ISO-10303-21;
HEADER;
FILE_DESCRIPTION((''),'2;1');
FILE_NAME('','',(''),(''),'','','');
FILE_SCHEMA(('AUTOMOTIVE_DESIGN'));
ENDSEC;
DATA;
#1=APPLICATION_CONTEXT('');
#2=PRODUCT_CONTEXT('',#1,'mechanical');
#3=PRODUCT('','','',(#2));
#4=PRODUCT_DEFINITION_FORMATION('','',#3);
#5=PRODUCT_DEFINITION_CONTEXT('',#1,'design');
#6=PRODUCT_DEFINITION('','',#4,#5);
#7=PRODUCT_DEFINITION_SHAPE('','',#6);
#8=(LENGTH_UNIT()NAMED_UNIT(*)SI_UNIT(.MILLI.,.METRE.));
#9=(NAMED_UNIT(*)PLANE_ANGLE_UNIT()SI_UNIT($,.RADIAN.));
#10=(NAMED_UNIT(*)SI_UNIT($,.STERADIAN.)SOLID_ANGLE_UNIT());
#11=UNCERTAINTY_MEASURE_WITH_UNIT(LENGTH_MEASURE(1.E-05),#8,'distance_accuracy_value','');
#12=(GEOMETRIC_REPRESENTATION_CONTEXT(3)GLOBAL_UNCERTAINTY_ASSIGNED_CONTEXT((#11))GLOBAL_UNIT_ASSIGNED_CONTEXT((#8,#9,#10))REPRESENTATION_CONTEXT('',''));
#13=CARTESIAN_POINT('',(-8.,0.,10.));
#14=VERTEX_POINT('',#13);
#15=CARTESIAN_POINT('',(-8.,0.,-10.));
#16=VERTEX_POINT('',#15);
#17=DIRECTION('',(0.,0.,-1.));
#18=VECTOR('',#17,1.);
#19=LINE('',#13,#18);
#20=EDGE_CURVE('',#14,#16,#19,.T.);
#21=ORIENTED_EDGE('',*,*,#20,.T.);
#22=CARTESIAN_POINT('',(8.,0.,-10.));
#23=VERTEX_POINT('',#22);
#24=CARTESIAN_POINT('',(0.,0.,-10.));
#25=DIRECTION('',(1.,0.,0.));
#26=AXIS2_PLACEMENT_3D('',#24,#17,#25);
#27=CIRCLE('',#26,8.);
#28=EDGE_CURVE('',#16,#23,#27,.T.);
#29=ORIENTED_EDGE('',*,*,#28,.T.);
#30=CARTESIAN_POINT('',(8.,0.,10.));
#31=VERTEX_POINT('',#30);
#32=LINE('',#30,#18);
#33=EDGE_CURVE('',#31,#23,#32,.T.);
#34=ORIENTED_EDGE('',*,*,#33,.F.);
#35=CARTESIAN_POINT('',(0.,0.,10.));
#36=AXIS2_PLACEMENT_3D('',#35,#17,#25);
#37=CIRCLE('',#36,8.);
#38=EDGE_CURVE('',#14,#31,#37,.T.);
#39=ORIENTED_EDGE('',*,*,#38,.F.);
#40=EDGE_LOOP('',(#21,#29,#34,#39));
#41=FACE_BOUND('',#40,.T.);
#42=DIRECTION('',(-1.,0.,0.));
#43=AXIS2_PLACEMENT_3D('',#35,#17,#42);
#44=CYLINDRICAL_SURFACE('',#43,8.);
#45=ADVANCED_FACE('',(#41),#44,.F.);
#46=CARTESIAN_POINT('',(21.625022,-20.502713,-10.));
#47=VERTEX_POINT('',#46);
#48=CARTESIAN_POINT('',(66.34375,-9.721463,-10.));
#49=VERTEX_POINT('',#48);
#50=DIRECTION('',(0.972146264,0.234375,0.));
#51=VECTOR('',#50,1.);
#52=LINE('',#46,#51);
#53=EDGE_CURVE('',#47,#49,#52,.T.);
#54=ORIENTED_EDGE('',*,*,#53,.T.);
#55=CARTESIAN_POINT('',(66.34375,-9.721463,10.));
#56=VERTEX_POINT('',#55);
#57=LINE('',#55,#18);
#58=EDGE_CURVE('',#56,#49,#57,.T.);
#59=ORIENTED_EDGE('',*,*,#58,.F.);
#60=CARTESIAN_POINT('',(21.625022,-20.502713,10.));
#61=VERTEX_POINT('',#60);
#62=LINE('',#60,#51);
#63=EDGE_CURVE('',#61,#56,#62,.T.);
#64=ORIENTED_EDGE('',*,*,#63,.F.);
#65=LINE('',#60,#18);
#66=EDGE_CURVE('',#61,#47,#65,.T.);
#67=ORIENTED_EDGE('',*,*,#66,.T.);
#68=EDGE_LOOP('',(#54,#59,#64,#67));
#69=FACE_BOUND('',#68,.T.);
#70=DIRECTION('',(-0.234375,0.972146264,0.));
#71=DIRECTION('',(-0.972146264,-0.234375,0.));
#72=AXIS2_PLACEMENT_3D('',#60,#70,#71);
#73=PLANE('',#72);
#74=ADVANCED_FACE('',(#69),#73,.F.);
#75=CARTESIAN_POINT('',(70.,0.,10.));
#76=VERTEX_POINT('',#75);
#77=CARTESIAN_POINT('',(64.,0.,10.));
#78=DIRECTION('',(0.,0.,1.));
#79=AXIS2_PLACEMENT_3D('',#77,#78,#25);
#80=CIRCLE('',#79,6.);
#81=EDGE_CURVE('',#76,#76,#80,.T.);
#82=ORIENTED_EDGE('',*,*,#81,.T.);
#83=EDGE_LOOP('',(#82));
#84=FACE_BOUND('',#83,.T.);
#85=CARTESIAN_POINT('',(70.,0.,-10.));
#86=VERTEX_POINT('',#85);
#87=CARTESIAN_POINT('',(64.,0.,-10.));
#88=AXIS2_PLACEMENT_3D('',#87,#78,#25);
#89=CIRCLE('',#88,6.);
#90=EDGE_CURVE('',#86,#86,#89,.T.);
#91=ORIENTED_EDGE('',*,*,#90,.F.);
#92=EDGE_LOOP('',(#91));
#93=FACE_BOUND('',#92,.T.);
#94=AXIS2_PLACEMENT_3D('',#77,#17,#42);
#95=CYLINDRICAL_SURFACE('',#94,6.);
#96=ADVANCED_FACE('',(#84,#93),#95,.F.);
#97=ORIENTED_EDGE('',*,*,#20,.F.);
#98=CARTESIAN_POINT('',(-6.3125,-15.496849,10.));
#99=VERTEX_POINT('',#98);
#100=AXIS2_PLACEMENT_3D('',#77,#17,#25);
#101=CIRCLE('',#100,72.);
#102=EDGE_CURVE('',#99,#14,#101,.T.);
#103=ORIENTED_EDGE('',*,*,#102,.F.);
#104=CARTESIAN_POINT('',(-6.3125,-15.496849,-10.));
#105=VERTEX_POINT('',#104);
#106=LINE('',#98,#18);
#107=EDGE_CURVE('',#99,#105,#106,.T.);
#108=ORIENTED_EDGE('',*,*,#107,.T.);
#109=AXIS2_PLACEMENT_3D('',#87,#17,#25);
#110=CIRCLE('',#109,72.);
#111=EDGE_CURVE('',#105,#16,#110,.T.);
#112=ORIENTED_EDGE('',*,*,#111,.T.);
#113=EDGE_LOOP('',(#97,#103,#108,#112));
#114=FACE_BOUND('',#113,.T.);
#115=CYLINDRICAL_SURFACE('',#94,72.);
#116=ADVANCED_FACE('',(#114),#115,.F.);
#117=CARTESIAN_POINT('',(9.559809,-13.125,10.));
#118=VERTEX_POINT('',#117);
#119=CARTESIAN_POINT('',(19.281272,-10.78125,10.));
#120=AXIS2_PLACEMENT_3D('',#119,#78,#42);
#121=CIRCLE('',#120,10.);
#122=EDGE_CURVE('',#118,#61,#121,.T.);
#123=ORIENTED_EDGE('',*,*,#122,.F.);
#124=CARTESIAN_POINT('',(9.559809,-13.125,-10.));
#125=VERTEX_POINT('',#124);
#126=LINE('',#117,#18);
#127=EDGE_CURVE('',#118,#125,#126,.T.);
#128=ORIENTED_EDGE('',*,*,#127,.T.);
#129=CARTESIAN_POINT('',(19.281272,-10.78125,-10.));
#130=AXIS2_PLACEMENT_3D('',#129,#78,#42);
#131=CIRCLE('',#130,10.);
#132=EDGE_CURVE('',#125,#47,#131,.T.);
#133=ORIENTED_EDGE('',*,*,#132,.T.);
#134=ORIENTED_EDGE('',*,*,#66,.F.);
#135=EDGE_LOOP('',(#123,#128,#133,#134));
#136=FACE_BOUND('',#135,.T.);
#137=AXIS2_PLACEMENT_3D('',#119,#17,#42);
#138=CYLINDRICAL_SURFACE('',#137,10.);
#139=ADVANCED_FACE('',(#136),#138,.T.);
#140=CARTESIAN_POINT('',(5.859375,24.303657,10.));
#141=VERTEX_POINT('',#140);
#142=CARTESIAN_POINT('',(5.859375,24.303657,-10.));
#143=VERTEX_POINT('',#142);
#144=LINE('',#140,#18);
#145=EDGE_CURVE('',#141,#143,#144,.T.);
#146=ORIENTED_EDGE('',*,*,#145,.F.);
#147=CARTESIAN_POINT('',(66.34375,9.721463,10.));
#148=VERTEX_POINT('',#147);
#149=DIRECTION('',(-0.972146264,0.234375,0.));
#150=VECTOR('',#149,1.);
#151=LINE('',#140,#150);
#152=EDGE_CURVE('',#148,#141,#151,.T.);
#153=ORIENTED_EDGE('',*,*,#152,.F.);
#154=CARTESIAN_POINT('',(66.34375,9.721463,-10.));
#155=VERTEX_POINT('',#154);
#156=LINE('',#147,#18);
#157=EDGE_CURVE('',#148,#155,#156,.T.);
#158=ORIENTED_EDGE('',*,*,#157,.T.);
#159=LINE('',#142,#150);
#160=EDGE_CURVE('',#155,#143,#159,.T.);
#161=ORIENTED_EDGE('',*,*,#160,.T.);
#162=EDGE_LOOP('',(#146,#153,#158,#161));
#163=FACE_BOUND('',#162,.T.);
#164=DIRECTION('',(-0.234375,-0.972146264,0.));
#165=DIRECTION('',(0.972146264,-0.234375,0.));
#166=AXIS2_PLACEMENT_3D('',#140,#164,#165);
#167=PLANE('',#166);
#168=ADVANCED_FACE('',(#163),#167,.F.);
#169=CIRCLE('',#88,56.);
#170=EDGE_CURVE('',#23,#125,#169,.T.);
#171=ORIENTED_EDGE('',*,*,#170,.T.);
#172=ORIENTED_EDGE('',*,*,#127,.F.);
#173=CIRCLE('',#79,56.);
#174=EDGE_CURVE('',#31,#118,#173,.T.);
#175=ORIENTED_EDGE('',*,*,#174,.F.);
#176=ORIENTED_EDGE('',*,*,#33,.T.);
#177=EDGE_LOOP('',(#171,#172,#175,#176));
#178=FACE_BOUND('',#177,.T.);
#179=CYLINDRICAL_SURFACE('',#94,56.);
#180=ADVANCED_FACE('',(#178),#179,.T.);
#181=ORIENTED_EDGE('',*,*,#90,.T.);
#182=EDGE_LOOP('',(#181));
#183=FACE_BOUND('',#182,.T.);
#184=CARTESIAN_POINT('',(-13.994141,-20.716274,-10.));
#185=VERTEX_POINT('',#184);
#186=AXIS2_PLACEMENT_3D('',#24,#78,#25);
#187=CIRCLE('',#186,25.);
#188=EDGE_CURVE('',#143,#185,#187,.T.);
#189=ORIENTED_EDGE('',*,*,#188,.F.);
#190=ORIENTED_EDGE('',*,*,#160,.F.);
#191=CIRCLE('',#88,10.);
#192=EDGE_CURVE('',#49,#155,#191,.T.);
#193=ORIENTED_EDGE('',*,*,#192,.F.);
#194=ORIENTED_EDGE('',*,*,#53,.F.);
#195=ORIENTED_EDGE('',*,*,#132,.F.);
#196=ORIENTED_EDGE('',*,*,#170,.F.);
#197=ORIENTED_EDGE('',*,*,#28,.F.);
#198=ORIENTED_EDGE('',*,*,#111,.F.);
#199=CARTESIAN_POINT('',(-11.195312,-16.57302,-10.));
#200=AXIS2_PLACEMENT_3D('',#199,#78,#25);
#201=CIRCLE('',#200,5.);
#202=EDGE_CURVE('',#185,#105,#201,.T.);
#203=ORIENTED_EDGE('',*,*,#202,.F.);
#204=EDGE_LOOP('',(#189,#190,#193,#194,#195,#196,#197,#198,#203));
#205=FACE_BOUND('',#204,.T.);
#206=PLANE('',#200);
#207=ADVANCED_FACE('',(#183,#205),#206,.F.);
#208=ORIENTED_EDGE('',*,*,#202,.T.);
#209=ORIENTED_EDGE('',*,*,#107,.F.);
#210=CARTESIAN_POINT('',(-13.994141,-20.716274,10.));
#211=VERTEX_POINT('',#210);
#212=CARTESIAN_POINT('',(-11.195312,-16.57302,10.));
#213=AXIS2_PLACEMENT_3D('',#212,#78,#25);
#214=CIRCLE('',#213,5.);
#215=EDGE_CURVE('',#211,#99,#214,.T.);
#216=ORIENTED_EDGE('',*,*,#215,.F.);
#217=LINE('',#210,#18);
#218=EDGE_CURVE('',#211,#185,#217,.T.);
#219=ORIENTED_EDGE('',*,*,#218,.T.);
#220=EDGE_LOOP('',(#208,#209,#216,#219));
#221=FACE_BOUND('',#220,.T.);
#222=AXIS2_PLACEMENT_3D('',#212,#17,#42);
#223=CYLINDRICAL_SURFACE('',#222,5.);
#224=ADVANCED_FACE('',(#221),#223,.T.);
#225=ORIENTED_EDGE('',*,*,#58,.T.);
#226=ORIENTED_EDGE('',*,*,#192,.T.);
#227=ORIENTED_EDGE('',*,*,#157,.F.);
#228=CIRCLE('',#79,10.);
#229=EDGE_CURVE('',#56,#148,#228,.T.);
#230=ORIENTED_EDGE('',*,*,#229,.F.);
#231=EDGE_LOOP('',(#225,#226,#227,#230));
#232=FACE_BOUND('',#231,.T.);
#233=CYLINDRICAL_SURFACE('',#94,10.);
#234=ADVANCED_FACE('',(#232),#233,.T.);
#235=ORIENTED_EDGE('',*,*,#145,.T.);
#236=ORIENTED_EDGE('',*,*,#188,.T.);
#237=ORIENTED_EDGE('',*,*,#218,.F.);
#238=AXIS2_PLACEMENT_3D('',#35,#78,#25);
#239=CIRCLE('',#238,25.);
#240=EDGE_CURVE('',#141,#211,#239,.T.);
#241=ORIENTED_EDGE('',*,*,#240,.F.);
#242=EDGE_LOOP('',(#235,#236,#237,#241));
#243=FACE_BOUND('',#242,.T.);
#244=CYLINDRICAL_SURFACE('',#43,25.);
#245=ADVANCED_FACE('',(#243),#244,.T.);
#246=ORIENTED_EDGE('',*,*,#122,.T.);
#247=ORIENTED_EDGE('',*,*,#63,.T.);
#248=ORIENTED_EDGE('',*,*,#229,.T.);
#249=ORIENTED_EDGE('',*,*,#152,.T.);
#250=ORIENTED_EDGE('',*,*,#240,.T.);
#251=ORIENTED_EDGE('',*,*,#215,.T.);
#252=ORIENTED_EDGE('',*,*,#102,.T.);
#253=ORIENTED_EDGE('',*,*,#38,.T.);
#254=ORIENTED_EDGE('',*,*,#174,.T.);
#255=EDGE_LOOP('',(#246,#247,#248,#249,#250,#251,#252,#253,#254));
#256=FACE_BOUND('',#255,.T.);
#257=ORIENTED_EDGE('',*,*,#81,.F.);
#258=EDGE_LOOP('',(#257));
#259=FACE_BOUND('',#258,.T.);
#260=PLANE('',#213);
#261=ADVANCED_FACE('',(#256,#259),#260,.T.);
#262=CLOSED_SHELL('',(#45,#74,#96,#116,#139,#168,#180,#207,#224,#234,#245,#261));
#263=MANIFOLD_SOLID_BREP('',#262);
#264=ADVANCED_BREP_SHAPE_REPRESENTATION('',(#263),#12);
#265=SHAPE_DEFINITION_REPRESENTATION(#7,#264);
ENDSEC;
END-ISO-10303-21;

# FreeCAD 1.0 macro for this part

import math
import FreeCAD as App
import Part
import Sketcher
from FreeCAD import Vector
Q = App.Units.Quantity

doc = App.newDocument("Part")
body = doc.addObject("PartDesign::Body", "Body")

# Sketch on XY plane
sketch1 = doc.addObject("Sketcher::SketchObject", "Sketch")
body.addObject(sketch1)
sketch1.AttachmentSupport = (doc.XY_Plane, [""])
sketch1.MapMode = "FlatFace"
sketch1.addGeometry([
    Part.LineSegment(Vector(66, 10, 0), Vector(6, 24, 0)),  # 0
    Part.ArcOfCircle(Part.Circle(Vector(0, 0, 0), Vector(0, 0, 1), 25), math.radians(76), math.radians(236)),  # 1
    Part.ArcOfCircle(Part.Circle(Vector(-11, -17, 0), Vector(0, 0, 1), 5), math.radians(-124), math.radians(12)),  # 2
    Part.ArcOfCircle(Part.Circle(Vector(64, 0, 0), Vector(0, 0, 1), 72), math.radians(180), math.radians(192.43)),  # 3
    Part.ArcOfCircle(Part.Circle(Vector(0, 0, 0), Vector(0, 0, 1), 8), math.radians(0), math.radians(180)),  # 4
    Part.ArcOfCircle(Part.Circle(Vector(64, 0, 0), Vector(0, 0, 1), 56), math.radians(180), math.radians(193.55)),  # 5
    Part.ArcOfCircle(Part.Circle(Vector(19, -11, 0), Vector(0, 0, 1), 10), math.radians(-166), math.radians(-76)),  # 6
    Part.LineSegment(Vector(22, -21, 0), Vector(66, -10, 0)),  # 7
    Part.ArcOfCircle(Part.Circle(Vector(64, 0, 0), Vector(0, 0, 1), 10), math.radians(-76), math.radians(76)),  # 8
    Part.Circle(Vector(64, 0, 0), Vector(0, 0, 1), 6),  # 9
], False)
sketch1.addConstraint([
    Sketcher.Constraint("Tangent", 0, 2, 1, 1),
    Sketcher.Constraint("Tangent", 1, 2, 2, 1),
    Sketcher.Constraint("Tangent", 2, 2, 3, 2),
    Sketcher.Constraint("Tangent", 3, 1, 4, 2),
    Sketcher.Constraint("Tangent", 4, 1, 5, 1),
    Sketcher.Constraint("Tangent", 5, 2, 6, 1),
    Sketcher.Constraint("Tangent", 6, 2, 7, 1),
    Sketcher.Constraint("Tangent", 7, 2, 8, 1),
    Sketcher.Constraint("Tangent", 8, 2, 0, 1),
    Sketcher.Constraint("Coincident", 1, 3, -1, 1),
    Sketcher.Constraint("Coincident", 4, 3, -1, 1),
    Sketcher.Constraint("Coincident", 5, 3, 3, 3),
    Sketcher.Constraint("Coincident", 8, 3, 3, 3),
    Sketcher.Constraint("Coincident", 9, 3, 3, 3),
    Sketcher.Constraint("Equal", 6, 8),
    Sketcher.Constraint("Symmetric", 7, 2, 8, 2, -1),
    Sketcher.Constraint("Diameter", 9, Q("12 mm")),
    Sketcher.Constraint("Radius", 1, Q("25 mm")),
    Sketcher.Constraint("Radius", 2, Q("5 mm")),
    Sketcher.Constraint("Radius", 3, Q("72 mm")),
    Sketcher.Constraint("Radius", 4, Q("8 mm")),
    Sketcher.Constraint("Radius", 6, Q("10 mm")),
])
pad1 = doc.addObject("PartDesign::Pad", "Pad")
body.addObject(pad1)
pad1.Profile = sketch1
pad1.Length = 20
pad1.Midplane = True

doc.recompute()
